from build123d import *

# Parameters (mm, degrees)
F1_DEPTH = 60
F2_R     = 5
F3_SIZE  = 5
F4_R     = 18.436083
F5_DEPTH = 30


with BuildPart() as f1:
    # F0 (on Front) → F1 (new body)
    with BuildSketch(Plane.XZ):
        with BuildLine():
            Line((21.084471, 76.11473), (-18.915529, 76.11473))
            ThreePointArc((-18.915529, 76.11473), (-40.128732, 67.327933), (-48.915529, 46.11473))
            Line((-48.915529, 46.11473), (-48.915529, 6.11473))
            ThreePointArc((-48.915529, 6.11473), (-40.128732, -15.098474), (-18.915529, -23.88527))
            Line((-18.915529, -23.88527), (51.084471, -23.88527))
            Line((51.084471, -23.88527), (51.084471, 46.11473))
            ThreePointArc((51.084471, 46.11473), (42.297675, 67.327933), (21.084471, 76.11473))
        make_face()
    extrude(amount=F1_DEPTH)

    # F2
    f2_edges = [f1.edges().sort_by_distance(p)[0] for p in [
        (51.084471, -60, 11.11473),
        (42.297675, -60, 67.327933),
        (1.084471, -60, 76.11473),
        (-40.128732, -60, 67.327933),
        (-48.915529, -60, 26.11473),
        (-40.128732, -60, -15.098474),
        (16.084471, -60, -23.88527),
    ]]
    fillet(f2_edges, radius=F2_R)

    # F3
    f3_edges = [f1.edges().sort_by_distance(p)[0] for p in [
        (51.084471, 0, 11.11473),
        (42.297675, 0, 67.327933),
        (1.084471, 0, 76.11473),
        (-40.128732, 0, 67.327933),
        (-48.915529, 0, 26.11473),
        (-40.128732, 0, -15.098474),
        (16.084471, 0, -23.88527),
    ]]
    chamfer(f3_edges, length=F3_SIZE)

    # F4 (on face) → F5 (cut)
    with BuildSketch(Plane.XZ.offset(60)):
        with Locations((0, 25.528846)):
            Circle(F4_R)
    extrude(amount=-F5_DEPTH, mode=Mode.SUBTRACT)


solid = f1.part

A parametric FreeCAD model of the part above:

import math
import FreeCAD as App
import Part
import Sketcher
from FreeCAD import Vector


def edges_at(feature, points):
    """Names of the edges that pass closest to the given points."""
    edges = feature.Shape.Edges
    near = lambda p: min(range(len(edges)), key=lambda i: edges[i].distToShape(Part.Vertex(*p))[0])
    return sorted({f"Edge{near(p) + 1}" for p in points})

doc = App.newDocument("Part")
params = doc.addObject("Spreadsheet::Sheet", "Params")
for row, (alias, value) in enumerate([
    ("sketch1_radius", "30.000001 mm"),
    ("sketch1_width", "40 mm"),
    ("pad1_length", "60 mm"),
    ("fillet_radius", "5 mm"),
    ("chamfer_size", "5 mm"),
    ("pocket1_length", "30 mm"),
], start=1):
    params.set(f"A{row}", alias)
    params.set(f"B{row}", "=" + value)
    params.setAlias(f"B{row}", alias)

body = doc.addObject("PartDesign::Body", "Body")

sketch1 = body.newObject("Sketcher::SketchObject", "Sketch")
sketch1.AttachmentSupport = (doc.getObject("XZ_Plane"), [""])
sketch1.MapMode = "FlatFace"
sketch1.addGeometry([
    Part.LineSegment(Vector(21, 76, 0), Vector(-19, 76, 0)),
    Part.ArcOfCircle(Part.Circle(Vector(-19, 46, 0), Vector(0, 0, 1), 30), math.radians(90), math.radians(180)),
    Part.LineSegment(Vector(-49, 46, 0), Vector(-49, 6, 0)),
    Part.ArcOfCircle(Part.Circle(Vector(-19, 6, 0), Vector(0, 0, 1), 30), math.radians(180), math.radians(270)),
    Part.LineSegment(Vector(-19, -24, 0), Vector(51, -24, 0)),
    Part.LineSegment(Vector(51, -24, 0), Vector(51, 46, 0)),
    Part.ArcOfCircle(Part.Circle(Vector(21, 46, 0), Vector(0, 0, 1), 30), math.radians(0), math.radians(90)),
], False)
sketch1.addConstraint([
    Sketcher.Constraint("Tangent", 0, 2, 1, 1),
    Sketcher.Constraint("Tangent", 1, 2, 2, 1),
    Sketcher.Constraint("Tangent", 2, 2, 3, 1),
    Sketcher.Constraint("Tangent", 3, 2, 4, 1),
    Sketcher.Constraint("Coincident", 4, 2, 5, 1),
    Sketcher.Constraint("Tangent", 5, 2, 6, 1),
    Sketcher.Constraint("Tangent", 6, 2, 0, 1),
    Sketcher.Constraint("Horizontal", 0),
    Sketcher.Constraint("Vertical", 2),
    Sketcher.Constraint("Horizontal", 4),
    Sketcher.Constraint("Vertical", 5),
    Sketcher.Constraint("Equal", 1, 3),
    Sketcher.Constraint("Equal", 3, 6),
    Sketcher.Constraint("Equal", 0, 2),
    Sketcher.Constraint("Radius", 1, 30.000001),
    Sketcher.Constraint("DistanceX", 0, 2, 0, 1, 40.0),
    Sketcher.Constraint("DistanceY", -1, 1, 1, 3, 46.114729),
    Sketcher.Constraint("DistanceX", 3, 3, -1, 1, 18.915529),
])
sketch1.setExpression("Constraints[14]", "Params.sketch1_radius")
sketch1.setExpression("Constraints[15]", "Params.sketch1_width")
pad1 = body.newObject("PartDesign::Pad", "Pad")
pad1.Profile = sketch1
pad1.setExpression("Length", "Params.pad1_length")
doc.recompute()

fillet = body.newObject("PartDesign::Fillet", "Fillet")
fillet.Base = (pad1, edges_at(pad1, [
    (51.084, -60, 11.115),
    (42.298, -60, 67.328),
    (1.084, -60, 76.115),
    (-40.129, -60, 67.328),
    (-48.916, -60, 26.115),
    (-40.129, -60, -15.098),
    (16.084, -60, -23.885),
]))
fillet.setExpression("Radius", "Params.fillet_radius")
doc.recompute()

chamfer = body.newObject("PartDesign::Chamfer", "Chamfer")
chamfer.Base = (fillet, edges_at(fillet, [
    (51.084, 0, 11.115),
    (42.298, 0, 67.328),
    (1.084, 0, 76.115),
    (-40.129, 0, 67.328),
    (-48.916, 0, 26.115),
    (-40.129, 0, -15.098),
    (16.084, 0, -23.885),
]))
chamfer.setExpression("Size", "Params.chamfer_size")

sketch2 = body.newObject("Sketcher::SketchObject", "Sketch001")
sketch2.AttachmentSupport = (doc.getObject("XZ_Plane"), [""])
sketch2.MapMode = "FlatFace"
sketch2.AttachmentOffset = App.Placement(Vector(0, 0, 60), App.Rotation())
sketch2.addGeometry(Part.Circle(Vector(0, 26, 0), Vector(0, 0, 1), 18), False)
sketch2.addConstraint([
    Sketcher.Constraint("PointOnObject", 0, 3, -2),
    Sketcher.Constraint("Diameter", 0, 36.872166),
    Sketcher.Constraint("DistanceY", -1, 1, 0, 3, 25.528846),
])
pocket1 = body.newObject("PartDesign::Pocket", "Pocket")
pocket1.Profile = sketch2
pocket1.setExpression("Length", "Params.pocket1_length")

doc.recompute()
